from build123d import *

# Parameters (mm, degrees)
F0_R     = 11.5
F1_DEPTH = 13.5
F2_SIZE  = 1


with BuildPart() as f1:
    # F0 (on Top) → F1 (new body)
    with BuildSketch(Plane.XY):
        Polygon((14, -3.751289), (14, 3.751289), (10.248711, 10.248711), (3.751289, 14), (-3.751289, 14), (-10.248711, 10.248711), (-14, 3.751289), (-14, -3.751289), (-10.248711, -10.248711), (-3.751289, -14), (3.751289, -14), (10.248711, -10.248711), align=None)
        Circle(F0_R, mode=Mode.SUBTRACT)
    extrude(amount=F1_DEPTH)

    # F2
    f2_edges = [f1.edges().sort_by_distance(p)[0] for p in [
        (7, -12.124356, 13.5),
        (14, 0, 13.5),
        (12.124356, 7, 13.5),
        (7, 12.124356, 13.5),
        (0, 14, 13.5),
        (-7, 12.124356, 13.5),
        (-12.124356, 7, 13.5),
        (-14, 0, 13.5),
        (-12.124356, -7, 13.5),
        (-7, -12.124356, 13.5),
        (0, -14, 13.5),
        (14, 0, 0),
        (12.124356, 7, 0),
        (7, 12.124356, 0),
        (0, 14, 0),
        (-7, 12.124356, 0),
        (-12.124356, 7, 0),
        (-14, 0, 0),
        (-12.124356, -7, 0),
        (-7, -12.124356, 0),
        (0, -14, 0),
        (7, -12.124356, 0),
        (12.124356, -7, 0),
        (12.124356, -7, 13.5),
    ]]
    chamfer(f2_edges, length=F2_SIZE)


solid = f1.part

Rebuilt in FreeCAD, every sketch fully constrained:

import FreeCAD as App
import Part
import Sketcher
from FreeCAD import Vector
Q = App.Units.Quantity


def edges_at(feature, points):
    """Names of the edges that pass closest to the given points."""
    edges = feature.Shape.Edges
    near = lambda p: min(range(len(edges)), key=lambda i: edges[i].distToShape(Part.Vertex(*p))[0])
    return sorted({f"Edge{near(p) + 1}" for p in points})


def add_polygon(sketch, points):
    """Adds a closed chain of lines whose ends are joined by coincident constraints."""
    first, n = sketch.GeometryCount, len(points)
    for a, b in zip(points, points[1:] + points[:1]):
        sketch.addGeometry(Part.LineSegment(App.Vector(*a, 0), App.Vector(*b, 0)), False)
    for i in range(n):
        sketch.addConstraint(Sketcher.Constraint("Coincident", first + i, 2, first + (i + 1) % n, 1))

doc = App.newDocument("Part")
params = doc.addObject("Spreadsheet::Sheet", "Params")
for row, (alias, value) in enumerate([
    ("sketch1_diameter", "23 mm"),
    ("pad1_length", "13.5 mm"),
    ("chamfer_size", "1 mm"),
], start=1):
    params.set(f"A{row}", alias)
    params.set(f"B{row}", "=" + value)
    params.setAlias(f"B{row}", alias)

body = doc.addObject("PartDesign::Body", "Body")

sketch1 = doc.addObject("Sketcher::SketchObject", "Sketch")
body.addObject(sketch1)
sketch1.AttachmentSupport = (doc.XY_Plane, [""])
sketch1.MapMode = "FlatFace"
add_polygon(sketch1, [(14, -3.751289), (14, 3.751289), (10.248711, 10.248711), (3.751289, 14), (-3.751289, 14), (-10.248711, 10.248711), (-14, 3.751289), (-14, -3.751289), (-10.248711, -10.248711), (-3.751289, -14), (3.751289, -14), (10.248711, -10.248711)])
sketch1.addGeometry(Part.Circle(Vector(0, 0, 0), Vector(0, 0, 1), 11.5), False)
sketch1.addConstraint([
    Sketcher.Constraint("Vertical", 0),
    Sketcher.Constraint("Horizontal", 3),
    Sketcher.Constraint("Vertical", 6),
    Sketcher.Constraint("Horizontal", 9),
    Sketcher.Constraint("Coincident", 12, 3, -1, 1),
    Sketcher.Constraint("Symmetric", 0, 2, 6, 2, -1, 1),
    Sketcher.Constraint("Symmetric", 1, 2, 7, 2, -1, 1),
    Sketcher.Constraint("Symmetric", 2, 2, 8, 2, -1, 1),
    Sketcher.Constraint("Symmetric", 4, 2, 10, 2, -1, 1),
    Sketcher.Constraint("Symmetric", 1, 2, 4, 2, -2),
    Sketcher.Constraint("Perpendicular", 1, 4),
    Sketcher.Constraint("Perpendicular", 2, 5),
    Sketcher.Constraint("Perpendicular", 7, 10),
    Sketcher.Constraint("Perpendicular", 8, 11),
    Sketcher.Constraint("Horizontal", 0, 2, 5, 2),
    Sketcher.Constraint("Equal", 9, 0),
    Sketcher.Constraint("Equal", 1, 2),
    Sketcher.Constraint("Diameter", 12, Q("23 mm")),
    Sketcher.Constraint("Angle", 1, Q("120.000004 deg")),
    Sketcher.Constraint("DistanceX", -1, 1, 0, 2, Q("14 mm")),
    Sketcher.Constraint("DistanceX", 3, 2, 1, 2, Q("14 mm")),
])
sketch1.setExpression("Constraints[29]", "Params.sketch1_diameter")
pad1 = doc.addObject("PartDesign::Pad", "Pad")
body.addObject(pad1)
pad1.Profile = sketch1
pad1.setExpression("Length", "Params.pad1_length")
doc.recompute()

chamfer = doc.addObject("PartDesign::Chamfer", "Chamfer")
body.addObject(chamfer)
chamfer.Base = (pad1, edges_at(pad1, [
    (7, -12.124, 13.5),
    (14, 0, 13.5),
    (12.124, 7, 13.5),
    (7, 12.124, 13.5),
    (0, 14, 13.5),
    (-7, 12.124, 13.5),
    (-12.124, 7, 13.5),
    (-14, 0, 13.5),
    (-12.124, -7, 13.5),
    (-7, -12.124, 13.5),
    (0, -14, 13.5),
    (14, 0, 0),
    (12.124, 7, 0),
    (7, 12.124, 0),
    (0, 14, 0),
    (-7, 12.124, 0),
    (-12.124, 7, 0),
    (-14, 0, 0),
    (-12.124, -7, 0),
    (-7, -12.124, 0),
    (0, -14, 0),
    (7, -12.124, 0),
    (12.124, -7, 0),
    (12.124, -7, 13.5),
]))
chamfer.setExpression("Size", "Params.chamfer_size")

doc.recompute()
